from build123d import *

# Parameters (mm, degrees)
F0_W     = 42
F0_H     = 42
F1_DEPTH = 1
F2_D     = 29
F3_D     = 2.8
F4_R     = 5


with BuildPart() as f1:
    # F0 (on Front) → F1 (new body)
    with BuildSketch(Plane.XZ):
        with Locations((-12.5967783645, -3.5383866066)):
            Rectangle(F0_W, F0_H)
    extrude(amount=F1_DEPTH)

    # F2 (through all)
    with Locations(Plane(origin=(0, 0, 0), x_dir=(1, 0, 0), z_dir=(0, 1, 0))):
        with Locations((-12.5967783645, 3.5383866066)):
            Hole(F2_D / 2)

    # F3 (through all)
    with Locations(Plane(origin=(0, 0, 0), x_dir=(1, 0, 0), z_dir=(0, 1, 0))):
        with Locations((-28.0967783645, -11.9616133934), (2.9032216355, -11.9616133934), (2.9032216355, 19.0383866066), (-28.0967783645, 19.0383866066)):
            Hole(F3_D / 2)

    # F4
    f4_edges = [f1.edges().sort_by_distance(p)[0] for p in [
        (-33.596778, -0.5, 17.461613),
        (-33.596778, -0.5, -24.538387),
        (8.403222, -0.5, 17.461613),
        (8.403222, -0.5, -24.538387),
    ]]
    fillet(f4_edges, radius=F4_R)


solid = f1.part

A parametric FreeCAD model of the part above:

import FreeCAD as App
import Part
import Sketcher
from FreeCAD import Vector
Q = App.Units.Quantity


def edges_at(feature, points):
    """Names of the edges that pass closest to the given points."""
    edges = feature.Shape.Edges
    near = lambda p: min(range(len(edges)), key=lambda i: edges[i].distToShape(Part.Vertex(*p))[0])
    return sorted({f"Edge{near(p) + 1}" for p in points})


def add_polygon(sketch, points):
    """Adds a closed chain of lines whose ends are joined by coincident constraints."""
    first, n = sketch.GeometryCount, len(points)
    for a, b in zip(points, points[1:] + points[:1]):
        sketch.addGeometry(Part.LineSegment(App.Vector(*a, 0), App.Vector(*b, 0)), False)
    for i in range(n):
        sketch.addConstraint(Sketcher.Constraint("Coincident", first + i, 2, first + (i + 1) % n, 1))

doc = App.newDocument("Part")
params = doc.addObject("Spreadsheet::Sheet", "Params")
for row, (alias, value) in enumerate([
    ("sketch1_width", "42 mm"),
    ("pad1_length", "1 mm"),
    ("sketch2_diameter", "29 mm"),
    ("hole_diameter", "29 mm"),
    ("sketch3_diameter", "2.8 mm"),
    ("hole2_diameter", "2.8 mm"),
    ("fillet_radius", "5 mm"),
], start=1):
    params.set(f"A{row}", alias)
    params.set(f"B{row}", "=" + value)
    params.setAlias(f"B{row}", alias)

body = doc.addObject("PartDesign::Body", "Body")

sketch1 = body.newObject("Sketcher::SketchObject", "Sketch")
sketch1.AttachmentSupport = (doc.getObject("XZ_Plane"), [""])
sketch1.MapMode = "FlatFace"
add_polygon(sketch1, [(-34, 17), (-34, -25), (8, -25), (8, 17)])
sketch1.addConstraint(Sketcher.Constraint("Vertical", 0))
sketch1.addConstraint(Sketcher.Constraint("Horizontal", 1))
sketch1.addConstraint(Sketcher.Constraint("Vertical", 2))
sketch1.addConstraint(Sketcher.Constraint("Horizontal", 3))
sketch1.addConstraint(Sketcher.Constraint("Equal", 3, 0))
sketch1.addConstraint(Sketcher.Constraint("DistanceX", 1, 1, 1, 2, Q("42 mm")))
sketch1.addConstraint(Sketcher.Constraint("DistanceX", 0, 2, -1, 1, Q("33.596778 mm")))
sketch1.addConstraint(Sketcher.Constraint("DistanceY", 0, 2, -1, 1, Q("24.538387 mm")))
sketch1.setExpression("Constraints[9]", "Params.sketch1_width")
pad1 = body.newObject("PartDesign::Pad", "Pad")
pad1.Profile = sketch1
pad1.setExpression("Length", "Params.pad1_length")

sketch2 = body.newObject("Sketcher::SketchObject", "Sketch001")
sketch2.AttachmentSupport = (doc.getObject("XZ_Plane"), [""])
sketch2.MapMode = "FlatFace"
sketch2.addGeometry(Part.Circle(Vector(-13, -4, 0), Vector(0, 0, 1), 14), False)
sketch2.addConstraint(Sketcher.Constraint("Diameter", 0, Q("29 mm")))
sketch2.addConstraint(Sketcher.Constraint("DistanceX", 0, 3, -1, 1, Q("12.596778 mm")))
sketch2.addConstraint(Sketcher.Constraint("DistanceY", 0, 3, -1, 1, Q("3.538387 mm")))
sketch2.setExpression("Constraints[0]", "Params.sketch2_diameter")
doc.recompute()
hole = body.newObject("PartDesign::Hole", "Hole")
hole.Profile = sketch2
hole.ThreadType = "None"
hole.setExpression("Diameter", "Params.hole_diameter")
hole.DepthType = "ThroughAll"
hole.Reversed = True

sketch3 = body.newObject("Sketcher::SketchObject", "Sketch002")
sketch3.AttachmentSupport = (doc.getObject("XZ_Plane"), [""])
sketch3.MapMode = "FlatFace"
sketch3.addGeometry(Part.Circle(Vector(-28.1, 12, 0), Vector(0, 0, 1), 1.4), False)
sketch3.addGeometry(Part.Circle(Vector(2.9, 12, 0), Vector(0, 0, 1), 1.4), False)
sketch3.addGeometry(Part.Circle(Vector(2.9, -19, 0), Vector(0, 0, 1), 1.4), False)
sketch3.addGeometry(Part.Circle(Vector(-28.1, -19, 0), Vector(0, 0, 1), 1.4), False)
sketch3.addConstraint(Sketcher.Constraint("Equal", 0, 1))
sketch3.addConstraint(Sketcher.Constraint("Equal", 1, 2))
sketch3.addConstraint(Sketcher.Constraint("Equal", 2, 3))
sketch3.addConstraint(Sketcher.Constraint("Horizontal", 0, 3, 1, 3))
sketch3.addConstraint(Sketcher.Constraint("Horizontal", 2, 3, 3, 3))
sketch3.addConstraint(Sketcher.Constraint("Vertical", 1, 3, 2, 3))
sketch3.addConstraint(Sketcher.Constraint("Vertical", 0, 3, 3, 3))
sketch3.addConstraint(Sketcher.Constraint("Diameter", 0, Q("2.8 mm")))
sketch3.addConstraint(Sketcher.Constraint("DistanceX", 0, 3, 1, 3, Q("31 mm")))
sketch3.addConstraint(Sketcher.Constraint("DistanceY", 2, 3, 1, 3, Q("31 mm")))
sketch3.addConstraint(Sketcher.Constraint("DistanceX", 0, 3, -1, 1, Q("28.096778 mm")))
sketch3.addConstraint(Sketcher.Constraint("DistanceY", -1, 1, 0, 3, Q("11.961613 mm")))
sketch3.setExpression("Constraints[7]", "Params.sketch3_diameter")
doc.recompute()
hole2 = body.newObject("PartDesign::Hole", "Hole001")
hole2.Profile = sketch3
hole2.ThreadType = "None"
hole2.setExpression("Diameter", "Params.hole2_diameter")
hole2.DepthType = "ThroughAll"
hole2.Reversed = True
doc.recompute()

fillet = body.newObject("PartDesign::Fillet", "Fillet")
fillet.Base = (hole2, edges_at(hole2, [
    (-33.597, -0.5, 17.462),
    (-33.597, -0.5, -24.538),
    (8.403, -0.5, 17.462),
    (8.403, -0.5, -24.538),
]))
fillet.setExpression("Radius", "Params.fillet_radius")

doc.recompute()
